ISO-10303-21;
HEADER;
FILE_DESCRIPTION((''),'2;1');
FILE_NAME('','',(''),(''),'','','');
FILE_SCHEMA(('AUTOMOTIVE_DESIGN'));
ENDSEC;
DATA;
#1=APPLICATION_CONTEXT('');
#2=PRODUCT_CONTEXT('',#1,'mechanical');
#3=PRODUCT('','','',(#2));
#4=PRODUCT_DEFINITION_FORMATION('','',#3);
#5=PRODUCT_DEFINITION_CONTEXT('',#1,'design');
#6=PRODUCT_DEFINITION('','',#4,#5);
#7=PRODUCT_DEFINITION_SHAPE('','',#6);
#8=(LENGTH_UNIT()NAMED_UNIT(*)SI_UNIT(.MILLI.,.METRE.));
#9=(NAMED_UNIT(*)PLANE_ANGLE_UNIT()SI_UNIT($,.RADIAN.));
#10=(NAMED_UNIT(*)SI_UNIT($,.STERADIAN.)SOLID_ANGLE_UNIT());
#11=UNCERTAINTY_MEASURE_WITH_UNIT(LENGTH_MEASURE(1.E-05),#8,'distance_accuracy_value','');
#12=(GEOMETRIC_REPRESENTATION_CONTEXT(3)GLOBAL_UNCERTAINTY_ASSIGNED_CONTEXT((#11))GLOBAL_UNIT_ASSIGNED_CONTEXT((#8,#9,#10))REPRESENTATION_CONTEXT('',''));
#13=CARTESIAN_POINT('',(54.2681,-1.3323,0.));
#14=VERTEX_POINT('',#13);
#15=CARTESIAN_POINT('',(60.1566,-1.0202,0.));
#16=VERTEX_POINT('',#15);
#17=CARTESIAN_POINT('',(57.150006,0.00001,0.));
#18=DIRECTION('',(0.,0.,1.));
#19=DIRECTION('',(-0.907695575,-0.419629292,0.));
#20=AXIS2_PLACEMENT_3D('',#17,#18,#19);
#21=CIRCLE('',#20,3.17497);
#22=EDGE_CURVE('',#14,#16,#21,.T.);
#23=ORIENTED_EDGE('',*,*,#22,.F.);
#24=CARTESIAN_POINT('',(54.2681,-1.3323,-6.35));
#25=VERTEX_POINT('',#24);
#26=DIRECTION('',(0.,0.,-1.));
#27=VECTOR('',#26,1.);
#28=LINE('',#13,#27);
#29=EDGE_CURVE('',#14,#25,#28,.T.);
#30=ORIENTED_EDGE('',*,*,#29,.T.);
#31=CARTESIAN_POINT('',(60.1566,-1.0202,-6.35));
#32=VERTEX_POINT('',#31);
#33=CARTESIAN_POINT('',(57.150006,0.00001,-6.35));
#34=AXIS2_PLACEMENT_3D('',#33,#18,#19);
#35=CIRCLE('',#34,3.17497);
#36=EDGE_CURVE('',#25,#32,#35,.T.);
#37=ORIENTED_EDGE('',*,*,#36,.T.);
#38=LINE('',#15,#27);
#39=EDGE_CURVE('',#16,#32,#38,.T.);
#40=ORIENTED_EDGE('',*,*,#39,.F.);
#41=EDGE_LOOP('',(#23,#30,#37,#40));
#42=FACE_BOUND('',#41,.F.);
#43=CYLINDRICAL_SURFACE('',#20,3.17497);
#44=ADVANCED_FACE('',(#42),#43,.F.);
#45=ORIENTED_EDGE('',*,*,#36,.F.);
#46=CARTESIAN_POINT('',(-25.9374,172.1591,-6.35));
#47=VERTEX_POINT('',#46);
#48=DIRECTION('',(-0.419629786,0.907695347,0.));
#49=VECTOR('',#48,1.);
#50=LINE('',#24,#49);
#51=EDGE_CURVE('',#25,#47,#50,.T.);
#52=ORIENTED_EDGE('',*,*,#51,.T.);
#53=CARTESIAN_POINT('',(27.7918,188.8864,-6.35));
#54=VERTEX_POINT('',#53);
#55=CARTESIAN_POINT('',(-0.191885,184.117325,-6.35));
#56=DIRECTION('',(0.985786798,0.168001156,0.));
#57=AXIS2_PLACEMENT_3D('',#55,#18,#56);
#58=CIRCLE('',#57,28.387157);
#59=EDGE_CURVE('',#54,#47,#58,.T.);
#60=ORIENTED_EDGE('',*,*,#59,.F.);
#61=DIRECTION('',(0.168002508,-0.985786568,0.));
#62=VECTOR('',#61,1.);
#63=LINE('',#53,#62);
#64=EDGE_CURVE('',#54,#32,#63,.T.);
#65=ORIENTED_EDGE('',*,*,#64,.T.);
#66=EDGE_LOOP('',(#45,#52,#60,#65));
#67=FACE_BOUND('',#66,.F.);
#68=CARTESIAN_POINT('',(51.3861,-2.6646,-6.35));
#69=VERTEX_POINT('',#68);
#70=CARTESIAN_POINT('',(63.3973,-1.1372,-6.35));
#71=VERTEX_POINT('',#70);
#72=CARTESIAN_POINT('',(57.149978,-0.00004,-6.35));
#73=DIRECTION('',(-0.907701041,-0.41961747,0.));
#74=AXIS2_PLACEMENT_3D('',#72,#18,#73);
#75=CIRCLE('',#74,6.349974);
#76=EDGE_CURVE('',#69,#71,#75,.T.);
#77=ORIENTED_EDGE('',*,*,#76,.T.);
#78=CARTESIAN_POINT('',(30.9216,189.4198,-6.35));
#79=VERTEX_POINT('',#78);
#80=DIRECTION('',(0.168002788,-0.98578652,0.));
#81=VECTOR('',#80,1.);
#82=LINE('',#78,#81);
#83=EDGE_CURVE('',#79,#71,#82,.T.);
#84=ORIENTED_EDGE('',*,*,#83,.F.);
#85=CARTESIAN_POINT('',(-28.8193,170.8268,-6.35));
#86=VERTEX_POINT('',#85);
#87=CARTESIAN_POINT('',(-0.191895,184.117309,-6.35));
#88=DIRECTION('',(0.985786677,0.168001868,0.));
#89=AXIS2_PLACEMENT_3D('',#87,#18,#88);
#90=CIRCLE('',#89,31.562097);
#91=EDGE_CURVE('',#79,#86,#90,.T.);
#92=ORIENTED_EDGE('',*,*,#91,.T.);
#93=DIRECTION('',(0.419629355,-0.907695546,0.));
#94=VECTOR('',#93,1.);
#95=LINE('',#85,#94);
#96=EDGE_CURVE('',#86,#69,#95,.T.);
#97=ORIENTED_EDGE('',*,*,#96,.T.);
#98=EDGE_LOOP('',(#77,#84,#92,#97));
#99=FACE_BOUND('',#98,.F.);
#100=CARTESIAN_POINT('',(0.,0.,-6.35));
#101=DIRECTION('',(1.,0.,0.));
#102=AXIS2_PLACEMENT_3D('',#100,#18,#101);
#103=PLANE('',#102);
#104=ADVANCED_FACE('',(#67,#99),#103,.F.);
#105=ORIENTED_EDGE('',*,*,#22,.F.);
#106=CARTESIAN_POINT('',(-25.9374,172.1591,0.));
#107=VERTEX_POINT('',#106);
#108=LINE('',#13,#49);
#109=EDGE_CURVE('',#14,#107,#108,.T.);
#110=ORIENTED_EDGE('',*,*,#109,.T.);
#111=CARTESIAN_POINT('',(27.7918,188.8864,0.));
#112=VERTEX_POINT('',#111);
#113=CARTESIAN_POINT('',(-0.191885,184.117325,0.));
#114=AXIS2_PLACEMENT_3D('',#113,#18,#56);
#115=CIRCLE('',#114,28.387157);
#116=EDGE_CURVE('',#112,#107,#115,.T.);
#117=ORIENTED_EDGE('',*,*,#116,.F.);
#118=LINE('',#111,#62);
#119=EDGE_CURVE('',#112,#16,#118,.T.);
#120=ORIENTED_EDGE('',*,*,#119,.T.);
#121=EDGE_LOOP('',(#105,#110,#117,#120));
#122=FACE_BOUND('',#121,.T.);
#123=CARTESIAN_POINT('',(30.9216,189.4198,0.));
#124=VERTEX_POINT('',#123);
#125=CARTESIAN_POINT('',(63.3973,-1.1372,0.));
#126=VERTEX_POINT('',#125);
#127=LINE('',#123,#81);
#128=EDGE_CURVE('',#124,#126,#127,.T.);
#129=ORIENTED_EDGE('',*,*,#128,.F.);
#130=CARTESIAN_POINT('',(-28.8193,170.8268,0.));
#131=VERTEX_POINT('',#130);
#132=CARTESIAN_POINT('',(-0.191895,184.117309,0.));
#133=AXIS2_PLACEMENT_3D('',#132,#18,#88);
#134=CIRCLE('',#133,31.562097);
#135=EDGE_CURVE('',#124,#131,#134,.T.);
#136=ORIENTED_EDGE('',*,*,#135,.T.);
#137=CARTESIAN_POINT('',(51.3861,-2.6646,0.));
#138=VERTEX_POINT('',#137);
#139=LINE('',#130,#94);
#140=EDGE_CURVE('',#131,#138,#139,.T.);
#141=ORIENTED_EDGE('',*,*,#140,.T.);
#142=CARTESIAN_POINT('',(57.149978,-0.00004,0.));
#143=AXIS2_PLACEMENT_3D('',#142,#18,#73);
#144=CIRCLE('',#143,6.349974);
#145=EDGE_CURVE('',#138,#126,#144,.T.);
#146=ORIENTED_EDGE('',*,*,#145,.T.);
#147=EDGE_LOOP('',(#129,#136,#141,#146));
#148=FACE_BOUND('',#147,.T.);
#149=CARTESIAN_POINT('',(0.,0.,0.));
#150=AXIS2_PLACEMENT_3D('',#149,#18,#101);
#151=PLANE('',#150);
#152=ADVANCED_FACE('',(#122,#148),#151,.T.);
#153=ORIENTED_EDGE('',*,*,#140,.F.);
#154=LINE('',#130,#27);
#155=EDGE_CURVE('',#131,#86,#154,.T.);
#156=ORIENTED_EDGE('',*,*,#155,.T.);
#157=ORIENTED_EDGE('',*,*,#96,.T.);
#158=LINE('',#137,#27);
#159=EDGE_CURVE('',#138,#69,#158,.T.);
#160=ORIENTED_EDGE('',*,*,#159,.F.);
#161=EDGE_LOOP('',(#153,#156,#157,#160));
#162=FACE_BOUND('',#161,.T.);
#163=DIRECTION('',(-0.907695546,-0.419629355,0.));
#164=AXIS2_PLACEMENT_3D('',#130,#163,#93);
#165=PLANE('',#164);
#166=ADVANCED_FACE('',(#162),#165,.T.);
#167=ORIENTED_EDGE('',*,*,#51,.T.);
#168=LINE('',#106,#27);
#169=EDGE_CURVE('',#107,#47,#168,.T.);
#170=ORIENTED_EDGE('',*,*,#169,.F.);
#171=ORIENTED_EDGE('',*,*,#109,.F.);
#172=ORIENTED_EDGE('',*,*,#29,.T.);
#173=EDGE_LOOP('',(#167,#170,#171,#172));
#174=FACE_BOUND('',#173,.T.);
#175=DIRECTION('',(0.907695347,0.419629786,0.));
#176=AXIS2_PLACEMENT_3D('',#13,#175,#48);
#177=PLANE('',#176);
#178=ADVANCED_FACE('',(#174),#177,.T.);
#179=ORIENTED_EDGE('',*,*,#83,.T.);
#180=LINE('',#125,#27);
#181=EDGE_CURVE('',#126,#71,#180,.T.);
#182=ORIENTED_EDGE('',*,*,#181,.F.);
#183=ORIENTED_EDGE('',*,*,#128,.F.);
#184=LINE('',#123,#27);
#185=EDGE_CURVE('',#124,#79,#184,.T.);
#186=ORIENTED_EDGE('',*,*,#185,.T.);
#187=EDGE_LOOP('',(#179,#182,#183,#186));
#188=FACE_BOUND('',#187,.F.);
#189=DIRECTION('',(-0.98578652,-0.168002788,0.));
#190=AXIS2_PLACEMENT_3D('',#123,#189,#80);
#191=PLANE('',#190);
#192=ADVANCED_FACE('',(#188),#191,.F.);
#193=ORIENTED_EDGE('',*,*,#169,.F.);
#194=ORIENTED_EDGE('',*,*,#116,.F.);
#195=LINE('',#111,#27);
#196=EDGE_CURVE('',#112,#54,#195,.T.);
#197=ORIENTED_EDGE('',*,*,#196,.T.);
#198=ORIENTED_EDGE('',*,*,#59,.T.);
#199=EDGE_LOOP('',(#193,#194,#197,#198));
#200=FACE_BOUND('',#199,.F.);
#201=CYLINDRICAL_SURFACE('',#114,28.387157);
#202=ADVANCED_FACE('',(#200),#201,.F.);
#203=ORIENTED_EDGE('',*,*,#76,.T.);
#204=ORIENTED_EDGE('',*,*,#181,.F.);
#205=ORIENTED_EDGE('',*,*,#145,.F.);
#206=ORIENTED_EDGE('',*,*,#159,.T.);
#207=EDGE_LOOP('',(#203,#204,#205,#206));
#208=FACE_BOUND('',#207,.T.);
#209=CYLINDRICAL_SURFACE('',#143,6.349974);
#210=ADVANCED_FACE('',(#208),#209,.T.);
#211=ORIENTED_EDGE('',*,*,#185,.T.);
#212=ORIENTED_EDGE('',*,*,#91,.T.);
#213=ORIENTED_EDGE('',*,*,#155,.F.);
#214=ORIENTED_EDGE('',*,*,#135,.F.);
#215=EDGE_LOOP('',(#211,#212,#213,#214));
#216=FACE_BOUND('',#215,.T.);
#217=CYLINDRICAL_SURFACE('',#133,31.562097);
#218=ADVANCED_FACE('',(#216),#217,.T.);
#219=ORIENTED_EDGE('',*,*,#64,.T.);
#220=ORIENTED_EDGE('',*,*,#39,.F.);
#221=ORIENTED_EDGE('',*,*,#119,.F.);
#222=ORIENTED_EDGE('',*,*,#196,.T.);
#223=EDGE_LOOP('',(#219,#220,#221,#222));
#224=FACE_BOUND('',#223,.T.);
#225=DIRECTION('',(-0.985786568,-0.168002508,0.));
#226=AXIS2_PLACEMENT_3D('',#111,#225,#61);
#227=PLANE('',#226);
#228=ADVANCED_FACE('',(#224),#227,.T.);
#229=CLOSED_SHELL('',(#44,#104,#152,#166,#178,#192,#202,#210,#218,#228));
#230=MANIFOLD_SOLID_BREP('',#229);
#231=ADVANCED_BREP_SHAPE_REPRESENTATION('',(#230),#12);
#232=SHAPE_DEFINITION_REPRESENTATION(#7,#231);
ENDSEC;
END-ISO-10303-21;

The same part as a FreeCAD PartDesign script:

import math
import FreeCAD as App
import Part
import Sketcher
Q = App.Units.Quantity

doc = App.newDocument("Part")
body = doc.addObject("PartDesign::Body", "Body")

# Sketch on XY plane
sketch1 = body.newObject("Sketcher::SketchObject", "Sketch")
sketch1.AttachmentSupport = (doc.getObject("XY_Plane"), [""])
sketch1.MapMode = "FlatFace"
sketch1.addGeometry([
    Part.LineSegment(App.Vector(63.3973, -1.1372, 0), App.Vector(30.9216, 189.4198, 0)),  # 0
    Part.ArcOfCircle(Part.Circle(App.Vector(-0.1919, 184.1173, 0), App.Vector(0, 0, 1), 31.562104), math.radians(9.671678), math.radians(204.903463)),  # 1
    Part.LineSegment(App.Vector(-28.8193, 170.8268, 0), App.Vector(51.3861, -2.6646, 0)),  # 2
    Part.ArcOfCircle(Part.Circle(App.Vector(57.15, 0, 0), App.Vector(0, 0, 1), 6.350011), math.radians(-155.189317), math.radians(-10.316629)),  # 3
    Part.ArcOfCircle(Part.Circle(App.Vector(-0.1919, 184.1173, 0), App.Vector(0, 0, 1), 28.387176), math.radians(9.671666), math.radians(204.913798)),  # 4
    Part.LineSegment(App.Vector(27.7918, 188.8864, 0), App.Vector(60.1566, -1.0202, 0)),  # 5
    Part.ArcOfCircle(Part.Circle(App.Vector(57.15, 0, 0), App.Vector(0, 0, 1), 3.17496), math.radians(-155.188938), math.radians(-18.74311)),  # 6
    Part.LineSegment(App.Vector(54.2681, -1.3323, 0), App.Vector(-25.9374, 172.1591, 0)),  # 7
], False)
sketch1.addConstraint([
    Sketcher.Constraint("Coincident", 0, 2, 1, 1),
    Sketcher.Constraint("Coincident", 1, 2, 2, 1),
    Sketcher.Constraint("Coincident", 2, 2, 3, 1),
    Sketcher.Constraint("Coincident", 3, 2, 0, 1),
    Sketcher.Constraint("Coincident", 4, 1, 5, 1),
    Sketcher.Constraint("Coincident", 5, 2, 6, 2),
    Sketcher.Constraint("Coincident", 6, 1, 7, 1),
    Sketcher.Constraint("Coincident", 7, 2, 4, 2),
    Sketcher.Constraint("Coincident", 4, 3, 1, 3),
    Sketcher.Constraint("Coincident", 6, 3, 3, 3),
    Sketcher.Constraint("PointOnObject", 3, 3, -1),
    Sketcher.Constraint("Radius", 6, Q("0.125 in")),
    Sketcher.Constraint("Radius", 3, Q("0.25 in")),
    Sketcher.Constraint("Radius", 1, Q("1.2426 in")),
    Sketcher.Constraint("Radius", 4, Q("1.1176 in")),
    Sketcher.Constraint("DistanceX", -1, 1, 3, 3, Q("2.25 in")),
    Sketcher.Constraint("DistanceX", 1, 2, 0, 2, Q("2.352 in")),
    Sketcher.Constraint("DistanceY", 1, 2, 0, 2, Q("0.732 in")),
    Sketcher.Constraint("DistanceY", 4, 1, 0, 2, Q("0.021 in")),
    Sketcher.Constraint("DistanceY", 2, 2, -1, 1, Q("0.1049 in")),
    Sketcher.Constraint("DistanceX", 1, 2, 2, 2, Q("3.1577 in")),
    Sketcher.Constraint("DistanceX", 5, 2, 3, 2, Q("0.1276 in")),
    Sketcher.Constraint("DistanceY", 3, 2, 5, 2, Q("0.0046 in")),
    Sketcher.Constraint("DistanceX", 7, 2, 1, 3, Q("1.0136 in")),
    Sketcher.Constraint("Distance", 0, Q("193.3045 mm")),
    Sketcher.Constraint("Distance", 7, Q("191.134 mm")),
])
pad1 = body.newObject("PartDesign::Pad", "Pad")
pad1.Profile = sketch1
pad1.Length = Q("0.25 in")
pad1.Reversed = True

doc.recompute()
